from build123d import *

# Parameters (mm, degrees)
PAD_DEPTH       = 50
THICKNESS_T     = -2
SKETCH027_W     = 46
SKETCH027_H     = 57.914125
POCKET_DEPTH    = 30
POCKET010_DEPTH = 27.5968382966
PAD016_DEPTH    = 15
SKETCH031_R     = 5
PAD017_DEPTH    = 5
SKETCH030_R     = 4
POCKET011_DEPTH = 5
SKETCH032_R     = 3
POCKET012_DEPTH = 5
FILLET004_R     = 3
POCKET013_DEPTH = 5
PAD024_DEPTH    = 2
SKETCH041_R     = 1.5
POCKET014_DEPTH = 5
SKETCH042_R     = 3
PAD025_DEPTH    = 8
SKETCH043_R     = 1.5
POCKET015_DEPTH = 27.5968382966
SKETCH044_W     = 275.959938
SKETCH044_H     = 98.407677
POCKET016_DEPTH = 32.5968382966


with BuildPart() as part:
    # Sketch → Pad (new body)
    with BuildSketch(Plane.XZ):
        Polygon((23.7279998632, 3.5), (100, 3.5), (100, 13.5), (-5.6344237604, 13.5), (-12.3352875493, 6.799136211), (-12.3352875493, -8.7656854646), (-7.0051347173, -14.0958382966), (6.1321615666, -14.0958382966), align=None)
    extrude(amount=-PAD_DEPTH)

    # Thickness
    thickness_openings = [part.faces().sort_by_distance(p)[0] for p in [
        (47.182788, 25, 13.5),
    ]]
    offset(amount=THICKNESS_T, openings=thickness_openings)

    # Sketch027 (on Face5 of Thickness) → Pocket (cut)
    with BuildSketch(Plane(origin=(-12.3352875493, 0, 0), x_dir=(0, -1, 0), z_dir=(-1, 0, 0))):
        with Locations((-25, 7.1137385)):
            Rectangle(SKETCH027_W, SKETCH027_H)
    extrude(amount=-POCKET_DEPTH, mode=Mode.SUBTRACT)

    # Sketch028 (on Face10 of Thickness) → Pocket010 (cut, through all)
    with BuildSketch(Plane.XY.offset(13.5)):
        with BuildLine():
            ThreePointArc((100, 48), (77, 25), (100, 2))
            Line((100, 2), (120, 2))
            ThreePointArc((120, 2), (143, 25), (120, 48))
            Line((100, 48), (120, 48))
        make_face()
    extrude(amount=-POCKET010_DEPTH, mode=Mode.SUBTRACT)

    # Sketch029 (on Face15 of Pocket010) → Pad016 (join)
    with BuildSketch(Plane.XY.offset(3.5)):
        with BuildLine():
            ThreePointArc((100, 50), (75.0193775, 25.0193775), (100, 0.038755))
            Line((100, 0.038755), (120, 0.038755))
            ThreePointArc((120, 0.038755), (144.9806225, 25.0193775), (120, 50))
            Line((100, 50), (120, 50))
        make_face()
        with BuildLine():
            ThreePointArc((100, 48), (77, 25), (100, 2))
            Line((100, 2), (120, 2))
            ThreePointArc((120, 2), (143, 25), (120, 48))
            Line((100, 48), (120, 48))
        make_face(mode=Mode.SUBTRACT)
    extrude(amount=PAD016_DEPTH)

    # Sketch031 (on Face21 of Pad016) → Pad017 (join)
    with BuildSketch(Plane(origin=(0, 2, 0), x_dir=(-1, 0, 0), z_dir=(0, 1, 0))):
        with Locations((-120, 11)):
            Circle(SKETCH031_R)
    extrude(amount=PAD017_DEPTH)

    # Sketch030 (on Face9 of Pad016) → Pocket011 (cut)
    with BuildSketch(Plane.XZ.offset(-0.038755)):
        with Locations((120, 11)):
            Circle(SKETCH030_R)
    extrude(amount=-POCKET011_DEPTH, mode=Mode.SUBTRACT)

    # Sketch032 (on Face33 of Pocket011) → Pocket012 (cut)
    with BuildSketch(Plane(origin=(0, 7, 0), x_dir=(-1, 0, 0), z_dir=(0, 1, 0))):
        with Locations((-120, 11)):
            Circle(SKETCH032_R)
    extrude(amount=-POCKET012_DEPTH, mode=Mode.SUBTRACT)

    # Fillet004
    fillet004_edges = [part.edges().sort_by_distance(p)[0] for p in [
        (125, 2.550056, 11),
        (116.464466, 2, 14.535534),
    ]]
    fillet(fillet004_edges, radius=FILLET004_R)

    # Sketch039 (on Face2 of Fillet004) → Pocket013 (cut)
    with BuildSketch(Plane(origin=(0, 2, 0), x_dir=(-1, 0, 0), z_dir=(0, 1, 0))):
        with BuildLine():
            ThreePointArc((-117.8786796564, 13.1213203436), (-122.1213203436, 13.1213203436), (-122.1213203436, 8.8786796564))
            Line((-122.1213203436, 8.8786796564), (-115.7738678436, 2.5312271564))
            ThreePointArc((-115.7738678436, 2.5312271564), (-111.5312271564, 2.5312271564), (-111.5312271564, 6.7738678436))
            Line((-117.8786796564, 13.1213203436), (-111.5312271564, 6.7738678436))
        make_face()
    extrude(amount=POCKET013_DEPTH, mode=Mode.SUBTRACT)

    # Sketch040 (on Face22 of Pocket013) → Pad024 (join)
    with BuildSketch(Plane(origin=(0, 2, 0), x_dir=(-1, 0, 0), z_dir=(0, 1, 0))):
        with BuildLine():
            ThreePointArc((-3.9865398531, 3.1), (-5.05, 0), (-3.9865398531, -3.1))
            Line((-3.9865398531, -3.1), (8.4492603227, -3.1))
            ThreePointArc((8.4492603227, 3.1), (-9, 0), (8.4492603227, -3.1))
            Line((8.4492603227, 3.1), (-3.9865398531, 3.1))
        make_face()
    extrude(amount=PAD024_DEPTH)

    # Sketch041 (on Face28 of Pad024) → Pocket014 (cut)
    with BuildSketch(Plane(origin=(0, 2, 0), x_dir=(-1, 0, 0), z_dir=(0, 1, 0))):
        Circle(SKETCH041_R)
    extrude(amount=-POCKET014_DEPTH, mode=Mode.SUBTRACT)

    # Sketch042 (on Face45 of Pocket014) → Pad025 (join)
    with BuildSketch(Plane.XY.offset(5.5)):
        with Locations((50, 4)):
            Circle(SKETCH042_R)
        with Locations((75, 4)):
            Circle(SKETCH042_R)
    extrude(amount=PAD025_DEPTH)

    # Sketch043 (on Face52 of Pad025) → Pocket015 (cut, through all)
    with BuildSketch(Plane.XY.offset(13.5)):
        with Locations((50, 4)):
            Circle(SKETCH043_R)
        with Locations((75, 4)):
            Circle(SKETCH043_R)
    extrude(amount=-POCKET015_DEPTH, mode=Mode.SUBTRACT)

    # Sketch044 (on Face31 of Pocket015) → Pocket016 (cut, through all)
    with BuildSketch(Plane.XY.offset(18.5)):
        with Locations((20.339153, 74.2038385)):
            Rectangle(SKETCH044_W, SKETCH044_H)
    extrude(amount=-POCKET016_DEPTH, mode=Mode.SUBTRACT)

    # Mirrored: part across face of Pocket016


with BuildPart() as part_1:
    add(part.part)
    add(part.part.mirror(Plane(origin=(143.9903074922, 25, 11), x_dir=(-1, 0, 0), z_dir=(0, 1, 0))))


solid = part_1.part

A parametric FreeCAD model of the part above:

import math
import FreeCAD as App
import Part
import Sketcher
Q = App.Units.Quantity


def edges_at(feature, points):
    """Names of the edges that pass closest to the given points."""
    edges = feature.Shape.Edges
    near = lambda p: min(range(len(edges)), key=lambda i: edges[i].distToShape(Part.Vertex(*p))[0])
    return sorted({f"Edge{near(p) + 1}" for p in points})


def faces_at(feature, points):
    """Names of the faces that lie closest to the given points."""
    faces = feature.Shape.Faces
    near = lambda p: min(range(len(faces)), key=lambda i: faces[i].distToShape(Part.Vertex(*p))[0])
    return sorted({f"Face{near(p) + 1}" for p in points})

doc = App.newDocument("Part")
body = doc.addObject("PartDesign::Body", "Body")

sketch1 = doc.addObject("Sketcher::SketchObject", "Sketch")
body.addObject(sketch1)
sketch1.AttachmentSupport = (doc.XZ_Plane, [""])
sketch1.MapMode = "FlatFace"
sketch1.addGeometry([
    Part.LineSegment(App.Vector(23.728, 3.5, 0), App.Vector(100, 3.5, 0)),
    Part.LineSegment(App.Vector(100, 3.5, 0), App.Vector(100, 13.5, 0)),
    Part.LineSegment(App.Vector(100, 13.5, 0), App.Vector(-5.634424, 13.5, 0)),
    Part.LineSegment(App.Vector(-5.634424, 13.5, 0), App.Vector(-12.335288, 6.799136, 0)),
    Part.LineSegment(App.Vector(-12.335288, 6.799136, 0), App.Vector(-12.335288, -8.765685, 0)),
    Part.LineSegment(App.Vector(-12.335288, -8.765685, 0), App.Vector(-7.005135, -14.095838, 0)),
    Part.LineSegment(App.Vector(-7.005135, -14.095838, 0), App.Vector(6.132162, -14.095838, 0)),
    Part.LineSegment(App.Vector(6.132162, -14.095838, 0), App.Vector(23.728, 3.5, 0)),
], False)
sketch1.addConstraint([
    Sketcher.Constraint("Coincident", 0, 2, 1, 1),
    Sketcher.Constraint("Coincident", 1, 2, 2, 1),
    Sketcher.Constraint("Coincident", 2, 2, 3, 1),
    Sketcher.Constraint("Coincident", 3, 2, 4, 1),
    Sketcher.Constraint("Coincident", 4, 2, 5, 1),
    Sketcher.Constraint("Coincident", 5, 2, 6, 1),
    Sketcher.Constraint("Coincident", 6, 2, 7, 1),
    Sketcher.Constraint("Coincident", 7, 2, 0, 1),
    Sketcher.Constraint("Horizontal", 0),
    Sketcher.Constraint("Vertical", 1),
    Sketcher.Constraint("Horizontal", 2),
    Sketcher.Constraint("Vertical", 4),
    Sketcher.Constraint("Horizontal", 6),
    Sketcher.Constraint("Perpendicular", 3, 5),
    Sketcher.Constraint("Perpendicular", 5, 7),
    Sketcher.Constraint("DistanceY", 1, 1, 1, 2, 10.0),
    Sketcher.Constraint("Angle", 3, Q("-135 deg")),
    Sketcher.Constraint("DistanceX", -1, 1, 0, 2, 100.0),
    Sketcher.Constraint("DistanceY", -1, 1, 0, 2, 3.5),
    Sketcher.Constraint("DistanceX", 0, 1, 0, 2, 76.272),
    Sketcher.Constraint("DistanceY", 4, 2, 4, 1, 15.564822),
    Sketcher.Constraint("DistanceX", 2, 2, 2, 1, 105.634424),
    Sketcher.Constraint("DistanceX", 6, 1, 6, 2, 13.137296),
    Sketcher.Constraint("DistanceY", 5, 2, -1, 1, 14.095838),
])
pad1 = doc.addObject("PartDesign::Pad", "Pad")
body.addObject(pad1)
pad1.Profile = sketch1
pad1.Length = 50
pad1.Reversed = True
doc.recompute()

thickness = doc.addObject("PartDesign::Thickness", "Thickness")
body.addObject(thickness)
thickness.Base = (pad1, faces_at(pad1, [(47.183, 25, 13.5)]))
thickness.Value = 2
thickness.Reversed = True
thickness.Join = "Arc"

sketch2 = doc.addObject("Sketcher::SketchObject", "Sketch001")
body.addObject(sketch2)
sketch2.AttachmentSupport = (doc.YZ_Plane, [""])
sketch2.MapMode = "FlatFace"
sketch2.AttachmentOffset = App.Placement(App.Vector(0, 0, -12.335288), App.Rotation())
sketch2.addGeometry([
    Part.LineSegment(App.Vector(48, 36.070801, 0), App.Vector(48, -21.843324, 0)),
    Part.LineSegment(App.Vector(48, -21.843324, 0), App.Vector(2, -21.843324, 0)),
    Part.LineSegment(App.Vector(2, -21.843324, 0), App.Vector(2, 36.070801, 0)),
    Part.LineSegment(App.Vector(2, 36.070801, 0), App.Vector(48, 36.070801, 0)),
], False)
sketch2.addConstraint([
    Sketcher.Constraint("Coincident", 0, 2, 1, 1),
    Sketcher.Constraint("Coincident", 1, 2, 2, 1),
    Sketcher.Constraint("Coincident", 2, 2, 3, 1),
    Sketcher.Constraint("Coincident", 3, 2, 0, 1),
    Sketcher.Constraint("Vertical", 0),
    Sketcher.Constraint("Horizontal", 1),
    Sketcher.Constraint("Vertical", 2),
    Sketcher.Constraint("Horizontal", 3),
    Sketcher.Constraint("DistanceX", 1, 2, 1, 1, 46.0),
    Sketcher.Constraint("DistanceX", -1, 1, 0, 2, 48.0),
    Sketcher.Constraint("DistanceY", -1, 1, 2, 2, 36.070801),
    Sketcher.Constraint("DistanceY", 0, 2, 0, 1, 57.914125),
])
pocket1 = doc.addObject("PartDesign::Pocket", "Pocket")
body.addObject(pocket1)
pocket1.Profile = sketch2
pocket1.Length = 30
pocket1.Reversed = True

sketch3 = doc.addObject("Sketcher::SketchObject", "Sketch002")
body.addObject(sketch3)
sketch3.AttachmentSupport = (doc.XY_Plane, [""])
sketch3.MapMode = "FlatFace"
sketch3.AttachmentOffset = App.Placement(App.Vector(0, 0, 13.5), App.Rotation())
sketch3.addGeometry([
    Part.ArcOfCircle(Part.Circle(App.Vector(100, 25, 0), App.Vector(0, 0, 1), 23), math.radians(90), math.radians(270)),
    Part.LineSegment(App.Vector(100, 2, 0), App.Vector(120, 2, 0)),
    Part.ArcOfCircle(Part.Circle(App.Vector(120, 25, 0), App.Vector(0, 0, 1), 23), math.radians(-90), math.radians(90)),
    Part.LineSegment(App.Vector(120, 48, 0), App.Vector(100, 48, 0)),
], False)
sketch3.addConstraint([
    Sketcher.Constraint("Tangent", 0, 2, 1, 1),
    Sketcher.Constraint("Tangent", 1, 2, 2, 1),
    Sketcher.Constraint("Tangent", 2, 2, 3, 1),
    Sketcher.Constraint("Tangent", 3, 2, 0, 1),
    Sketcher.Constraint("Horizontal", 1),
    Sketcher.Constraint("Horizontal", 3),
    Sketcher.Constraint("Radius", 0, 23.0),
    Sketcher.Constraint("DistanceX", 1, 1, 1, 2, 20.0),
    Sketcher.Constraint("DistanceX", -1, 1, 0, 3, 100.0),
    Sketcher.Constraint("DistanceY", -1, 1, 0, 3, 25.0),
])
pocket2 = doc.addObject("PartDesign::Pocket", "Pocket001")
body.addObject(pocket2)
pocket2.Profile = sketch3
pocket2.Type = "ThroughAll"

sketch4 = doc.addObject("Sketcher::SketchObject", "Sketch003")
body.addObject(sketch4)
sketch4.AttachmentSupport = (doc.XY_Plane, [""])
sketch4.MapMode = "FlatFace"
sketch4.AttachmentOffset = App.Placement(App.Vector(0, 0, 3.5), App.Rotation())
sketch4.addGeometry([
    Part.ArcOfCircle(Part.Circle(App.Vector(100, 25.019378, 0), App.Vector(0, 0, 1), 24.980622), math.radians(90), math.radians(270)),
    Part.LineSegment(App.Vector(100, 0.038755, 0), App.Vector(120, 0.038755, 0)),
    Part.ArcOfCircle(Part.Circle(App.Vector(120, 25.019378, 0), App.Vector(0, 0, 1), 24.980622), math.radians(-90), math.radians(90)),
    Part.LineSegment(App.Vector(120, 50, 0), App.Vector(100, 50, 0)),
    Part.ArcOfCircle(Part.Circle(App.Vector(100, 25, 0), App.Vector(0, 0, 1), 23), math.radians(90), math.radians(270)),
    Part.LineSegment(App.Vector(100, 48, 0), App.Vector(120, 48, 0)),
    Part.ArcOfCircle(Part.Circle(App.Vector(120, 25, 0), App.Vector(0, 0, 1), 23), math.radians(-90), math.radians(90)),
    Part.LineSegment(App.Vector(120, 2, 0), App.Vector(100, 2, 0)),
], False)
sketch4.addConstraint([
    Sketcher.Constraint("Tangent", 0, 2, 1, 1),
    Sketcher.Constraint("Tangent", 1, 2, 2, 1),
    Sketcher.Constraint("Tangent", 2, 2, 3, 1),
    Sketcher.Constraint("Tangent", 3, 2, 0, 1),
    Sketcher.Constraint("Tangent", 4, 1, 5, 1),
    Sketcher.Constraint("Tangent", 5, 2, 6, 2),
    Sketcher.Constraint("Tangent", 6, 1, 7, 1),
    Sketcher.Constraint("Tangent", 7, 2, 4, 2),
    Sketcher.Constraint("Horizontal", 1),
    Sketcher.Constraint("Horizontal", 3),
    Sketcher.Constraint("Horizontal", 5),
    Sketcher.Constraint("Horizontal", 7),
    Sketcher.Constraint("Vertical", 0, 3, 4, 3),
    Sketcher.Constraint("Vertical", 2, 3, 6, 3),
    Sketcher.Constraint("Radius", 4, 23.0),
    Sketcher.Constraint("DistanceX", 1, 1, 1, 2, 20.0),
    Sketcher.Constraint("DistanceX", -1, 1, 0, 3, 100.0),
    Sketcher.Constraint("DistanceY", -1, 1, 4, 3, 25.0),
    Sketcher.Constraint("DistanceY", -1, 1, 2, 2, 50.0),
    Sketcher.Constraint("Radius", 0, 24.980622),
])
pad2 = doc.addObject("PartDesign::Pad", "Pad001")
body.addObject(pad2)
pad2.Profile = sketch4
pad2.Length = 15

sketch5 = doc.addObject("Sketcher::SketchObject", "Sketch004")
body.addObject(sketch5)
sketch5.AttachmentSupport = (doc.XZ_Plane, [""])
sketch5.MapMode = "FlatFace"
sketch5.AttachmentOffset = App.Placement(App.Vector(0, 0, -2), App.Rotation())
sketch5.addGeometry(Part.Circle(App.Vector(120, 11, 0), App.Vector(0, 0, 1), 5), False)
sketch5.addConstraint([
    Sketcher.Constraint("Diameter", 0, 10.0),
    Sketcher.Constraint("DistanceX", -1, 1, 0, 3, 120.0),
    Sketcher.Constraint("DistanceY", -1, 1, 0, 3, 11.0),
])
pad3 = doc.addObject("PartDesign::Pad", "Pad002")
body.addObject(pad3)
pad3.Profile = sketch5
pad3.Length = 5
pad3.Reversed = True

sketch6 = doc.addObject("Sketcher::SketchObject", "Sketch005")
body.addObject(sketch6)
sketch6.AttachmentSupport = (doc.XZ_Plane, [""])
sketch6.MapMode = "FlatFace"
sketch6.AttachmentOffset = App.Placement(App.Vector(0, 0, -0.038755), App.Rotation())
sketch6.addGeometry(Part.Circle(App.Vector(120, 11, 0), App.Vector(0, 0, 1), 4), False)
sketch6.addConstraint([
    Sketcher.Constraint("Diameter", 0, 8.0),
    Sketcher.Constraint("DistanceX", -1, 1, 0, 3, 120.0),
    Sketcher.Constraint("DistanceY", -1, 1, 0, 3, 11.0),
])
pocket3 = doc.addObject("PartDesign::Pocket", "Pocket002")
body.addObject(pocket3)
pocket3.Profile = sketch6
pocket3.Length = 5

sketch7 = doc.addObject("Sketcher::SketchObject", "Sketch006")
body.addObject(sketch7)
sketch7.AttachmentSupport = (doc.XZ_Plane, [""])
sketch7.MapMode = "FlatFace"
sketch7.AttachmentOffset = App.Placement(App.Vector(0, 0, -7), App.Rotation())
sketch7.addGeometry(Part.Circle(App.Vector(120, 11, 0), App.Vector(0, 0, 1), 3), False)
sketch7.addConstraint([
    Sketcher.Constraint("Diameter", 0, 6.0),
    Sketcher.Constraint("DistanceX", -1, 1, 0, 3, 120.0),
    Sketcher.Constraint("DistanceY", -1, 1, 0, 3, 11.0),
])
pocket4 = doc.addObject("PartDesign::Pocket", "Pocket003")
body.addObject(pocket4)
pocket4.Profile = sketch7
pocket4.Length = 5
pocket4.Reversed = True
doc.recompute()

fillet = doc.addObject("PartDesign::Fillet", "Fillet")
body.addObject(fillet)
fillet.Base = (pocket4, edges_at(pocket4, [(125, 2.55, 11), (116.464, 2, 14.536)]))
fillet.Radius = 3

sketch8 = doc.addObject("Sketcher::SketchObject", "Sketch007")
body.addObject(sketch8)
sketch8.AttachmentSupport = (doc.XZ_Plane, [""])
sketch8.MapMode = "FlatFace"
sketch8.AttachmentOffset = App.Placement(App.Vector(0, 0, -2), App.Rotation())
sketch8.addGeometry([
    Part.ArcOfCircle(Part.Circle(App.Vector(120, 11, 0), App.Vector(0, 0, 1), 3), math.radians(-45), math.radians(135)),
    Part.LineSegment(App.Vector(122.12132, 8.87868, 0), App.Vector(115.773868, 2.531227, 0)),
    Part.ArcOfCircle(Part.Circle(App.Vector(113.652547, 4.652547, 0), App.Vector(0, 0, 1), 3), math.radians(135), math.radians(315)),
    Part.LineSegment(App.Vector(111.531227, 6.773868, 0), App.Vector(117.87868, 13.12132, 0)),
], False)
sketch8.addConstraint([
    Sketcher.Constraint("Tangent", 0, 1, 1, 1),
    Sketcher.Constraint("Tangent", 1, 2, 2, 2),
    Sketcher.Constraint("Tangent", 2, 1, 3, 1),
    Sketcher.Constraint("Tangent", 3, 2, 0, 2),
    Sketcher.Constraint("Equal", 0, 2),
    Sketcher.Constraint("Radius", 0, 3.0),
    Sketcher.Constraint("Angle", 1, Q("-135 deg")),
    Sketcher.Constraint("DistanceX", -1, 1, 0, 3, 120.0),
    Sketcher.Constraint("DistanceY", -1, 1, 0, 3, 11.0),
    Sketcher.Constraint("DistanceY", 2, 1, 0, 1, 2.104812),
])
pocket5 = doc.addObject("PartDesign::Pocket", "Pocket004")
body.addObject(pocket5)
pocket5.Profile = sketch8
pocket5.Length = 5

sketch9 = doc.addObject("Sketcher::SketchObject", "Sketch008")
body.addObject(sketch9)
sketch9.AttachmentSupport = (doc.XZ_Plane, [""])
sketch9.MapMode = "FlatFace"
sketch9.AttachmentOffset = App.Placement(App.Vector(0, 0, -2), App.Rotation())
sketch9.addGeometry([
    Part.ArcOfCircle(Part.Circle(App.Vector(0, 0, 0), App.Vector(0, 0, 1), 5.05), math.radians(-37.869233), math.radians(37.869233)),
    Part.LineSegment(App.Vector(3.98654, 3.1, 0), App.Vector(-8.44926, 3.1, 0)),
    Part.ArcOfCircle(Part.Circle(App.Vector(0, 0, 0), App.Vector(0, 0, 1), 9), math.radians(-159.852114), math.radians(159.852114)),
    Part.LineSegment(App.Vector(-8.44926, -3.1, 0), App.Vector(3.98654, -3.1, 0)),
], False)
sketch9.addConstraint([
    Sketcher.Constraint("Coincident", 0, 2, 1, 1),
    Sketcher.Constraint("Coincident", 1, 2, 2, 2),
    Sketcher.Constraint("Coincident", 2, 1, 3, 1),
    Sketcher.Constraint("Coincident", 3, 2, 0, 1),
    Sketcher.Constraint("Horizontal", 1),
    Sketcher.Constraint("Horizontal", 3),
    Sketcher.Constraint("Coincident", 0, 3, -1, 1),
    Sketcher.Constraint("Coincident", 2, 3, -1, 1),
    Sketcher.Constraint("Vertical", 1, 2, 2, 1),
    Sketcher.Constraint("Radius", 2, 9.0),
    Sketcher.Constraint("Radius", 0, 5.05),
    Sketcher.Constraint("DistanceY", -1, 1, 0, 2, 3.1),
])
pad4 = doc.addObject("PartDesign::Pad", "Pad003")
body.addObject(pad4)
pad4.Profile = sketch9
pad4.Length = 2
pad4.Reversed = True

sketch10 = doc.addObject("Sketcher::SketchObject", "Sketch009")
body.addObject(sketch10)
sketch10.AttachmentSupport = (doc.XZ_Plane, [""])
sketch10.MapMode = "FlatFace"
sketch10.AttachmentOffset = App.Placement(App.Vector(0, 0, -2), App.Rotation())
sketch10.addGeometry(Part.Circle(App.Vector(0, 0, 0), App.Vector(0, 0, 1), 1.5), False)
sketch10.addConstraint([
    Sketcher.Constraint("Coincident", 0, 3, -1, 1),
    Sketcher.Constraint("Diameter", 0, 3.0),
])
pocket6 = doc.addObject("PartDesign::Pocket", "Pocket005")
body.addObject(pocket6)
pocket6.Profile = sketch10
pocket6.Length = 5
pocket6.Reversed = True

sketch11 = doc.addObject("Sketcher::SketchObject", "Sketch010")
body.addObject(sketch11)
sketch11.AttachmentSupport = (doc.XY_Plane, [""])
sketch11.MapMode = "FlatFace"
sketch11.AttachmentOffset = App.Placement(App.Vector(0, 0, 5.5), App.Rotation())
sketch11.addGeometry([
    Part.Circle(App.Vector(50, 4, 0), App.Vector(0, 0, 1), 3),
    Part.Circle(App.Vector(75, 4, 0), App.Vector(0, 0, 1), 3),
], False)
sketch11.addConstraint([
    Sketcher.Constraint("Equal", 0, 1),
    Sketcher.Constraint("Horizontal", 0, 3, 1, 3),
    Sketcher.Constraint("Diameter", 0, 6.0),
    Sketcher.Constraint("DistanceX", -1, 1, 0, 3, 50.0),
    Sketcher.Constraint("DistanceY", -1, 1, 0, 3, 4.0),
    Sketcher.Constraint("DistanceX", -1, 1, 1, 3, 75.0),
])
pad5 = doc.addObject("PartDesign::Pad", "Pad004")
body.addObject(pad5)
pad5.Profile = sketch11
pad5.Length = 8

sketch12 = doc.addObject("Sketcher::SketchObject", "Sketch011")
body.addObject(sketch12)
sketch12.AttachmentSupport = (doc.XY_Plane, [""])
sketch12.MapMode = "FlatFace"
sketch12.AttachmentOffset = App.Placement(App.Vector(0, 0, 13.5), App.Rotation())
sketch12.addGeometry([
    Part.Circle(App.Vector(50, 4, 0), App.Vector(0, 0, 1), 1.5),
    Part.Circle(App.Vector(75, 4, 0), App.Vector(0, 0, 1), 1.5),
], False)
sketch12.addConstraint([
    Sketcher.Constraint("Equal", 0, 1),
    Sketcher.Constraint("Horizontal", 0, 3, 1, 3),
    Sketcher.Constraint("Diameter", 0, 3.0),
    Sketcher.Constraint("DistanceX", -1, 1, 0, 3, 50.0),
    Sketcher.Constraint("DistanceY", -1, 1, 0, 3, 4.0),
    Sketcher.Constraint("DistanceX", -1, 1, 1, 3, 75.0),
])
pocket7 = doc.addObject("PartDesign::Pocket", "Pocket006")
body.addObject(pocket7)
pocket7.Profile = sketch12
pocket7.Type = "ThroughAll"

sketch13 = doc.addObject("Sketcher::SketchObject", "Sketch012")
body.addObject(sketch13)
sketch13.AttachmentSupport = (doc.XY_Plane, [""])
sketch13.MapMode = "FlatFace"
sketch13.AttachmentOffset = App.Placement(App.Vector(0, 0, 18.5), App.Rotation())
sketch13.addGeometry([
    Part.LineSegment(App.Vector(-117.640816, 123.407677, 0), App.Vector(-117.640816, 25, 0)),
    Part.LineSegment(App.Vector(-117.640816, 25, 0), App.Vector(158.319122, 25, 0)),
    Part.LineSegment(App.Vector(158.319122, 25, 0), App.Vector(158.319122, 123.407677, 0)),
    Part.LineSegment(App.Vector(158.319122, 123.407677, 0), App.Vector(-117.640816, 123.407677, 0)),
], False)
sketch13.addConstraint([
    Sketcher.Constraint("Coincident", 0, 2, 1, 1),
    Sketcher.Constraint("Coincident", 1, 2, 2, 1),
    Sketcher.Constraint("Coincident", 2, 2, 3, 1),
    Sketcher.Constraint("Coincident", 3, 2, 0, 1),
    Sketcher.Constraint("Vertical", 0),
    Sketcher.Constraint("Horizontal", 1),
    Sketcher.Constraint("Vertical", 2),
    Sketcher.Constraint("Horizontal", 3),
    Sketcher.Constraint("DistanceY", -1, 1, 0, 2, 25.0),
    Sketcher.Constraint("DistanceX", 1, 1, 1, 2, 275.959938),
    Sketcher.Constraint("DistanceY", 0, 2, 0, 1, 98.407677),
    Sketcher.Constraint("DistanceX", -1, 1, 1, 2, 158.319122),
])
pocket8 = doc.addObject("PartDesign::Pocket", "Pocket007")
body.addObject(pocket8)
pocket8.Profile = sketch13
pocket8.Type = "ThroughAll"
body2 = doc.addObject("PartDesign::Body", "Body001")
doc.recompute()

body2.BaseFeature = body
doc.recompute()

mirroring = doc.addObject("Part::Mirroring", "Mirroring")
mirroring.Source = body
mirroring.Base = App.Vector(143.990307, 25, 11)
mirroring.Normal = App.Vector(0, 1, 0)
body3 = doc.addObject("PartDesign::Body", "Body002")
body3.BaseFeature = mirroring
boolean = doc.addObject("PartDesign::Boolean", "Boolean")
body2.addObject(boolean)
boolean.Type = "Fuse"
boolean.addObjects([body3])
doc.recompute()
mirroring.Visibility = False

doc.recompute()
